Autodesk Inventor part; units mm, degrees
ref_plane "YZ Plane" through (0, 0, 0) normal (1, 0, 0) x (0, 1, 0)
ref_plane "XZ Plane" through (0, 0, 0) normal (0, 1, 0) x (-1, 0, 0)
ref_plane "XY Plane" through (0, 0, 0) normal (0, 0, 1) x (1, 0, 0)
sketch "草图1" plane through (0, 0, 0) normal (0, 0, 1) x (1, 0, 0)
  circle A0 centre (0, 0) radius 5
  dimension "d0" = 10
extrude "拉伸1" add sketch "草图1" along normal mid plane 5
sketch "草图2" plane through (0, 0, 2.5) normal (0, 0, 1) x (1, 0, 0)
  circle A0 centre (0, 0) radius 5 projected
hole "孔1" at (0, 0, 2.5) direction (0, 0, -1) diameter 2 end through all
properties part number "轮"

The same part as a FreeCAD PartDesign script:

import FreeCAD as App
import Part
import Sketcher

doc = App.newDocument("Part")
body = doc.addObject("PartDesign::Body", "Body")

sketch1 = doc.addObject("Sketcher::SketchObject", "Sketch")
body.addObject(sketch1)
sketch1.AttachmentSupport = (doc.XY_Plane, [""])
sketch1.MapMode = "FlatFace"
sketch1.addGeometry(Part.Circle(App.Vector(0, 0, 0), App.Vector(0, 0, 1), 5), False)
sketch1.addConstraint([
    Sketcher.Constraint("Coincident", 0, 3, -1, 1),
    Sketcher.Constraint("Diameter", 0, 10.0),
])
pad1 = doc.addObject("PartDesign::Pad", "Pad")
body.addObject(pad1)
pad1.Profile = sketch1
pad1.Length = 5
pad1.Midplane = True

sketch2 = doc.addObject("Sketcher::SketchObject", "Sketch001")
body.addObject(sketch2)
sketch2.AttachmentSupport = (doc.XY_Plane, [""])
sketch2.MapMode = "FlatFace"
sketch2.AttachmentOffset = App.Placement(App.Vector(0, 0, 2.5), App.Rotation())
sketch2.addGeometry(Part.Circle(App.Vector(0, 0, 0), App.Vector(0, 0, 1), 1), False)
sketch2.addConstraint([
    Sketcher.Constraint("Coincident", 0, 3, -1, 1),
    Sketcher.Constraint("Diameter", 0, 2.0),
])
doc.recompute()
hole = doc.addObject("PartDesign::Hole", "Hole")
body.addObject(hole)
hole.Profile = sketch2
hole.ThreadType = "None"
hole.Diameter = 2
hole.DepthType = "ThroughAll"

doc.recompute()
